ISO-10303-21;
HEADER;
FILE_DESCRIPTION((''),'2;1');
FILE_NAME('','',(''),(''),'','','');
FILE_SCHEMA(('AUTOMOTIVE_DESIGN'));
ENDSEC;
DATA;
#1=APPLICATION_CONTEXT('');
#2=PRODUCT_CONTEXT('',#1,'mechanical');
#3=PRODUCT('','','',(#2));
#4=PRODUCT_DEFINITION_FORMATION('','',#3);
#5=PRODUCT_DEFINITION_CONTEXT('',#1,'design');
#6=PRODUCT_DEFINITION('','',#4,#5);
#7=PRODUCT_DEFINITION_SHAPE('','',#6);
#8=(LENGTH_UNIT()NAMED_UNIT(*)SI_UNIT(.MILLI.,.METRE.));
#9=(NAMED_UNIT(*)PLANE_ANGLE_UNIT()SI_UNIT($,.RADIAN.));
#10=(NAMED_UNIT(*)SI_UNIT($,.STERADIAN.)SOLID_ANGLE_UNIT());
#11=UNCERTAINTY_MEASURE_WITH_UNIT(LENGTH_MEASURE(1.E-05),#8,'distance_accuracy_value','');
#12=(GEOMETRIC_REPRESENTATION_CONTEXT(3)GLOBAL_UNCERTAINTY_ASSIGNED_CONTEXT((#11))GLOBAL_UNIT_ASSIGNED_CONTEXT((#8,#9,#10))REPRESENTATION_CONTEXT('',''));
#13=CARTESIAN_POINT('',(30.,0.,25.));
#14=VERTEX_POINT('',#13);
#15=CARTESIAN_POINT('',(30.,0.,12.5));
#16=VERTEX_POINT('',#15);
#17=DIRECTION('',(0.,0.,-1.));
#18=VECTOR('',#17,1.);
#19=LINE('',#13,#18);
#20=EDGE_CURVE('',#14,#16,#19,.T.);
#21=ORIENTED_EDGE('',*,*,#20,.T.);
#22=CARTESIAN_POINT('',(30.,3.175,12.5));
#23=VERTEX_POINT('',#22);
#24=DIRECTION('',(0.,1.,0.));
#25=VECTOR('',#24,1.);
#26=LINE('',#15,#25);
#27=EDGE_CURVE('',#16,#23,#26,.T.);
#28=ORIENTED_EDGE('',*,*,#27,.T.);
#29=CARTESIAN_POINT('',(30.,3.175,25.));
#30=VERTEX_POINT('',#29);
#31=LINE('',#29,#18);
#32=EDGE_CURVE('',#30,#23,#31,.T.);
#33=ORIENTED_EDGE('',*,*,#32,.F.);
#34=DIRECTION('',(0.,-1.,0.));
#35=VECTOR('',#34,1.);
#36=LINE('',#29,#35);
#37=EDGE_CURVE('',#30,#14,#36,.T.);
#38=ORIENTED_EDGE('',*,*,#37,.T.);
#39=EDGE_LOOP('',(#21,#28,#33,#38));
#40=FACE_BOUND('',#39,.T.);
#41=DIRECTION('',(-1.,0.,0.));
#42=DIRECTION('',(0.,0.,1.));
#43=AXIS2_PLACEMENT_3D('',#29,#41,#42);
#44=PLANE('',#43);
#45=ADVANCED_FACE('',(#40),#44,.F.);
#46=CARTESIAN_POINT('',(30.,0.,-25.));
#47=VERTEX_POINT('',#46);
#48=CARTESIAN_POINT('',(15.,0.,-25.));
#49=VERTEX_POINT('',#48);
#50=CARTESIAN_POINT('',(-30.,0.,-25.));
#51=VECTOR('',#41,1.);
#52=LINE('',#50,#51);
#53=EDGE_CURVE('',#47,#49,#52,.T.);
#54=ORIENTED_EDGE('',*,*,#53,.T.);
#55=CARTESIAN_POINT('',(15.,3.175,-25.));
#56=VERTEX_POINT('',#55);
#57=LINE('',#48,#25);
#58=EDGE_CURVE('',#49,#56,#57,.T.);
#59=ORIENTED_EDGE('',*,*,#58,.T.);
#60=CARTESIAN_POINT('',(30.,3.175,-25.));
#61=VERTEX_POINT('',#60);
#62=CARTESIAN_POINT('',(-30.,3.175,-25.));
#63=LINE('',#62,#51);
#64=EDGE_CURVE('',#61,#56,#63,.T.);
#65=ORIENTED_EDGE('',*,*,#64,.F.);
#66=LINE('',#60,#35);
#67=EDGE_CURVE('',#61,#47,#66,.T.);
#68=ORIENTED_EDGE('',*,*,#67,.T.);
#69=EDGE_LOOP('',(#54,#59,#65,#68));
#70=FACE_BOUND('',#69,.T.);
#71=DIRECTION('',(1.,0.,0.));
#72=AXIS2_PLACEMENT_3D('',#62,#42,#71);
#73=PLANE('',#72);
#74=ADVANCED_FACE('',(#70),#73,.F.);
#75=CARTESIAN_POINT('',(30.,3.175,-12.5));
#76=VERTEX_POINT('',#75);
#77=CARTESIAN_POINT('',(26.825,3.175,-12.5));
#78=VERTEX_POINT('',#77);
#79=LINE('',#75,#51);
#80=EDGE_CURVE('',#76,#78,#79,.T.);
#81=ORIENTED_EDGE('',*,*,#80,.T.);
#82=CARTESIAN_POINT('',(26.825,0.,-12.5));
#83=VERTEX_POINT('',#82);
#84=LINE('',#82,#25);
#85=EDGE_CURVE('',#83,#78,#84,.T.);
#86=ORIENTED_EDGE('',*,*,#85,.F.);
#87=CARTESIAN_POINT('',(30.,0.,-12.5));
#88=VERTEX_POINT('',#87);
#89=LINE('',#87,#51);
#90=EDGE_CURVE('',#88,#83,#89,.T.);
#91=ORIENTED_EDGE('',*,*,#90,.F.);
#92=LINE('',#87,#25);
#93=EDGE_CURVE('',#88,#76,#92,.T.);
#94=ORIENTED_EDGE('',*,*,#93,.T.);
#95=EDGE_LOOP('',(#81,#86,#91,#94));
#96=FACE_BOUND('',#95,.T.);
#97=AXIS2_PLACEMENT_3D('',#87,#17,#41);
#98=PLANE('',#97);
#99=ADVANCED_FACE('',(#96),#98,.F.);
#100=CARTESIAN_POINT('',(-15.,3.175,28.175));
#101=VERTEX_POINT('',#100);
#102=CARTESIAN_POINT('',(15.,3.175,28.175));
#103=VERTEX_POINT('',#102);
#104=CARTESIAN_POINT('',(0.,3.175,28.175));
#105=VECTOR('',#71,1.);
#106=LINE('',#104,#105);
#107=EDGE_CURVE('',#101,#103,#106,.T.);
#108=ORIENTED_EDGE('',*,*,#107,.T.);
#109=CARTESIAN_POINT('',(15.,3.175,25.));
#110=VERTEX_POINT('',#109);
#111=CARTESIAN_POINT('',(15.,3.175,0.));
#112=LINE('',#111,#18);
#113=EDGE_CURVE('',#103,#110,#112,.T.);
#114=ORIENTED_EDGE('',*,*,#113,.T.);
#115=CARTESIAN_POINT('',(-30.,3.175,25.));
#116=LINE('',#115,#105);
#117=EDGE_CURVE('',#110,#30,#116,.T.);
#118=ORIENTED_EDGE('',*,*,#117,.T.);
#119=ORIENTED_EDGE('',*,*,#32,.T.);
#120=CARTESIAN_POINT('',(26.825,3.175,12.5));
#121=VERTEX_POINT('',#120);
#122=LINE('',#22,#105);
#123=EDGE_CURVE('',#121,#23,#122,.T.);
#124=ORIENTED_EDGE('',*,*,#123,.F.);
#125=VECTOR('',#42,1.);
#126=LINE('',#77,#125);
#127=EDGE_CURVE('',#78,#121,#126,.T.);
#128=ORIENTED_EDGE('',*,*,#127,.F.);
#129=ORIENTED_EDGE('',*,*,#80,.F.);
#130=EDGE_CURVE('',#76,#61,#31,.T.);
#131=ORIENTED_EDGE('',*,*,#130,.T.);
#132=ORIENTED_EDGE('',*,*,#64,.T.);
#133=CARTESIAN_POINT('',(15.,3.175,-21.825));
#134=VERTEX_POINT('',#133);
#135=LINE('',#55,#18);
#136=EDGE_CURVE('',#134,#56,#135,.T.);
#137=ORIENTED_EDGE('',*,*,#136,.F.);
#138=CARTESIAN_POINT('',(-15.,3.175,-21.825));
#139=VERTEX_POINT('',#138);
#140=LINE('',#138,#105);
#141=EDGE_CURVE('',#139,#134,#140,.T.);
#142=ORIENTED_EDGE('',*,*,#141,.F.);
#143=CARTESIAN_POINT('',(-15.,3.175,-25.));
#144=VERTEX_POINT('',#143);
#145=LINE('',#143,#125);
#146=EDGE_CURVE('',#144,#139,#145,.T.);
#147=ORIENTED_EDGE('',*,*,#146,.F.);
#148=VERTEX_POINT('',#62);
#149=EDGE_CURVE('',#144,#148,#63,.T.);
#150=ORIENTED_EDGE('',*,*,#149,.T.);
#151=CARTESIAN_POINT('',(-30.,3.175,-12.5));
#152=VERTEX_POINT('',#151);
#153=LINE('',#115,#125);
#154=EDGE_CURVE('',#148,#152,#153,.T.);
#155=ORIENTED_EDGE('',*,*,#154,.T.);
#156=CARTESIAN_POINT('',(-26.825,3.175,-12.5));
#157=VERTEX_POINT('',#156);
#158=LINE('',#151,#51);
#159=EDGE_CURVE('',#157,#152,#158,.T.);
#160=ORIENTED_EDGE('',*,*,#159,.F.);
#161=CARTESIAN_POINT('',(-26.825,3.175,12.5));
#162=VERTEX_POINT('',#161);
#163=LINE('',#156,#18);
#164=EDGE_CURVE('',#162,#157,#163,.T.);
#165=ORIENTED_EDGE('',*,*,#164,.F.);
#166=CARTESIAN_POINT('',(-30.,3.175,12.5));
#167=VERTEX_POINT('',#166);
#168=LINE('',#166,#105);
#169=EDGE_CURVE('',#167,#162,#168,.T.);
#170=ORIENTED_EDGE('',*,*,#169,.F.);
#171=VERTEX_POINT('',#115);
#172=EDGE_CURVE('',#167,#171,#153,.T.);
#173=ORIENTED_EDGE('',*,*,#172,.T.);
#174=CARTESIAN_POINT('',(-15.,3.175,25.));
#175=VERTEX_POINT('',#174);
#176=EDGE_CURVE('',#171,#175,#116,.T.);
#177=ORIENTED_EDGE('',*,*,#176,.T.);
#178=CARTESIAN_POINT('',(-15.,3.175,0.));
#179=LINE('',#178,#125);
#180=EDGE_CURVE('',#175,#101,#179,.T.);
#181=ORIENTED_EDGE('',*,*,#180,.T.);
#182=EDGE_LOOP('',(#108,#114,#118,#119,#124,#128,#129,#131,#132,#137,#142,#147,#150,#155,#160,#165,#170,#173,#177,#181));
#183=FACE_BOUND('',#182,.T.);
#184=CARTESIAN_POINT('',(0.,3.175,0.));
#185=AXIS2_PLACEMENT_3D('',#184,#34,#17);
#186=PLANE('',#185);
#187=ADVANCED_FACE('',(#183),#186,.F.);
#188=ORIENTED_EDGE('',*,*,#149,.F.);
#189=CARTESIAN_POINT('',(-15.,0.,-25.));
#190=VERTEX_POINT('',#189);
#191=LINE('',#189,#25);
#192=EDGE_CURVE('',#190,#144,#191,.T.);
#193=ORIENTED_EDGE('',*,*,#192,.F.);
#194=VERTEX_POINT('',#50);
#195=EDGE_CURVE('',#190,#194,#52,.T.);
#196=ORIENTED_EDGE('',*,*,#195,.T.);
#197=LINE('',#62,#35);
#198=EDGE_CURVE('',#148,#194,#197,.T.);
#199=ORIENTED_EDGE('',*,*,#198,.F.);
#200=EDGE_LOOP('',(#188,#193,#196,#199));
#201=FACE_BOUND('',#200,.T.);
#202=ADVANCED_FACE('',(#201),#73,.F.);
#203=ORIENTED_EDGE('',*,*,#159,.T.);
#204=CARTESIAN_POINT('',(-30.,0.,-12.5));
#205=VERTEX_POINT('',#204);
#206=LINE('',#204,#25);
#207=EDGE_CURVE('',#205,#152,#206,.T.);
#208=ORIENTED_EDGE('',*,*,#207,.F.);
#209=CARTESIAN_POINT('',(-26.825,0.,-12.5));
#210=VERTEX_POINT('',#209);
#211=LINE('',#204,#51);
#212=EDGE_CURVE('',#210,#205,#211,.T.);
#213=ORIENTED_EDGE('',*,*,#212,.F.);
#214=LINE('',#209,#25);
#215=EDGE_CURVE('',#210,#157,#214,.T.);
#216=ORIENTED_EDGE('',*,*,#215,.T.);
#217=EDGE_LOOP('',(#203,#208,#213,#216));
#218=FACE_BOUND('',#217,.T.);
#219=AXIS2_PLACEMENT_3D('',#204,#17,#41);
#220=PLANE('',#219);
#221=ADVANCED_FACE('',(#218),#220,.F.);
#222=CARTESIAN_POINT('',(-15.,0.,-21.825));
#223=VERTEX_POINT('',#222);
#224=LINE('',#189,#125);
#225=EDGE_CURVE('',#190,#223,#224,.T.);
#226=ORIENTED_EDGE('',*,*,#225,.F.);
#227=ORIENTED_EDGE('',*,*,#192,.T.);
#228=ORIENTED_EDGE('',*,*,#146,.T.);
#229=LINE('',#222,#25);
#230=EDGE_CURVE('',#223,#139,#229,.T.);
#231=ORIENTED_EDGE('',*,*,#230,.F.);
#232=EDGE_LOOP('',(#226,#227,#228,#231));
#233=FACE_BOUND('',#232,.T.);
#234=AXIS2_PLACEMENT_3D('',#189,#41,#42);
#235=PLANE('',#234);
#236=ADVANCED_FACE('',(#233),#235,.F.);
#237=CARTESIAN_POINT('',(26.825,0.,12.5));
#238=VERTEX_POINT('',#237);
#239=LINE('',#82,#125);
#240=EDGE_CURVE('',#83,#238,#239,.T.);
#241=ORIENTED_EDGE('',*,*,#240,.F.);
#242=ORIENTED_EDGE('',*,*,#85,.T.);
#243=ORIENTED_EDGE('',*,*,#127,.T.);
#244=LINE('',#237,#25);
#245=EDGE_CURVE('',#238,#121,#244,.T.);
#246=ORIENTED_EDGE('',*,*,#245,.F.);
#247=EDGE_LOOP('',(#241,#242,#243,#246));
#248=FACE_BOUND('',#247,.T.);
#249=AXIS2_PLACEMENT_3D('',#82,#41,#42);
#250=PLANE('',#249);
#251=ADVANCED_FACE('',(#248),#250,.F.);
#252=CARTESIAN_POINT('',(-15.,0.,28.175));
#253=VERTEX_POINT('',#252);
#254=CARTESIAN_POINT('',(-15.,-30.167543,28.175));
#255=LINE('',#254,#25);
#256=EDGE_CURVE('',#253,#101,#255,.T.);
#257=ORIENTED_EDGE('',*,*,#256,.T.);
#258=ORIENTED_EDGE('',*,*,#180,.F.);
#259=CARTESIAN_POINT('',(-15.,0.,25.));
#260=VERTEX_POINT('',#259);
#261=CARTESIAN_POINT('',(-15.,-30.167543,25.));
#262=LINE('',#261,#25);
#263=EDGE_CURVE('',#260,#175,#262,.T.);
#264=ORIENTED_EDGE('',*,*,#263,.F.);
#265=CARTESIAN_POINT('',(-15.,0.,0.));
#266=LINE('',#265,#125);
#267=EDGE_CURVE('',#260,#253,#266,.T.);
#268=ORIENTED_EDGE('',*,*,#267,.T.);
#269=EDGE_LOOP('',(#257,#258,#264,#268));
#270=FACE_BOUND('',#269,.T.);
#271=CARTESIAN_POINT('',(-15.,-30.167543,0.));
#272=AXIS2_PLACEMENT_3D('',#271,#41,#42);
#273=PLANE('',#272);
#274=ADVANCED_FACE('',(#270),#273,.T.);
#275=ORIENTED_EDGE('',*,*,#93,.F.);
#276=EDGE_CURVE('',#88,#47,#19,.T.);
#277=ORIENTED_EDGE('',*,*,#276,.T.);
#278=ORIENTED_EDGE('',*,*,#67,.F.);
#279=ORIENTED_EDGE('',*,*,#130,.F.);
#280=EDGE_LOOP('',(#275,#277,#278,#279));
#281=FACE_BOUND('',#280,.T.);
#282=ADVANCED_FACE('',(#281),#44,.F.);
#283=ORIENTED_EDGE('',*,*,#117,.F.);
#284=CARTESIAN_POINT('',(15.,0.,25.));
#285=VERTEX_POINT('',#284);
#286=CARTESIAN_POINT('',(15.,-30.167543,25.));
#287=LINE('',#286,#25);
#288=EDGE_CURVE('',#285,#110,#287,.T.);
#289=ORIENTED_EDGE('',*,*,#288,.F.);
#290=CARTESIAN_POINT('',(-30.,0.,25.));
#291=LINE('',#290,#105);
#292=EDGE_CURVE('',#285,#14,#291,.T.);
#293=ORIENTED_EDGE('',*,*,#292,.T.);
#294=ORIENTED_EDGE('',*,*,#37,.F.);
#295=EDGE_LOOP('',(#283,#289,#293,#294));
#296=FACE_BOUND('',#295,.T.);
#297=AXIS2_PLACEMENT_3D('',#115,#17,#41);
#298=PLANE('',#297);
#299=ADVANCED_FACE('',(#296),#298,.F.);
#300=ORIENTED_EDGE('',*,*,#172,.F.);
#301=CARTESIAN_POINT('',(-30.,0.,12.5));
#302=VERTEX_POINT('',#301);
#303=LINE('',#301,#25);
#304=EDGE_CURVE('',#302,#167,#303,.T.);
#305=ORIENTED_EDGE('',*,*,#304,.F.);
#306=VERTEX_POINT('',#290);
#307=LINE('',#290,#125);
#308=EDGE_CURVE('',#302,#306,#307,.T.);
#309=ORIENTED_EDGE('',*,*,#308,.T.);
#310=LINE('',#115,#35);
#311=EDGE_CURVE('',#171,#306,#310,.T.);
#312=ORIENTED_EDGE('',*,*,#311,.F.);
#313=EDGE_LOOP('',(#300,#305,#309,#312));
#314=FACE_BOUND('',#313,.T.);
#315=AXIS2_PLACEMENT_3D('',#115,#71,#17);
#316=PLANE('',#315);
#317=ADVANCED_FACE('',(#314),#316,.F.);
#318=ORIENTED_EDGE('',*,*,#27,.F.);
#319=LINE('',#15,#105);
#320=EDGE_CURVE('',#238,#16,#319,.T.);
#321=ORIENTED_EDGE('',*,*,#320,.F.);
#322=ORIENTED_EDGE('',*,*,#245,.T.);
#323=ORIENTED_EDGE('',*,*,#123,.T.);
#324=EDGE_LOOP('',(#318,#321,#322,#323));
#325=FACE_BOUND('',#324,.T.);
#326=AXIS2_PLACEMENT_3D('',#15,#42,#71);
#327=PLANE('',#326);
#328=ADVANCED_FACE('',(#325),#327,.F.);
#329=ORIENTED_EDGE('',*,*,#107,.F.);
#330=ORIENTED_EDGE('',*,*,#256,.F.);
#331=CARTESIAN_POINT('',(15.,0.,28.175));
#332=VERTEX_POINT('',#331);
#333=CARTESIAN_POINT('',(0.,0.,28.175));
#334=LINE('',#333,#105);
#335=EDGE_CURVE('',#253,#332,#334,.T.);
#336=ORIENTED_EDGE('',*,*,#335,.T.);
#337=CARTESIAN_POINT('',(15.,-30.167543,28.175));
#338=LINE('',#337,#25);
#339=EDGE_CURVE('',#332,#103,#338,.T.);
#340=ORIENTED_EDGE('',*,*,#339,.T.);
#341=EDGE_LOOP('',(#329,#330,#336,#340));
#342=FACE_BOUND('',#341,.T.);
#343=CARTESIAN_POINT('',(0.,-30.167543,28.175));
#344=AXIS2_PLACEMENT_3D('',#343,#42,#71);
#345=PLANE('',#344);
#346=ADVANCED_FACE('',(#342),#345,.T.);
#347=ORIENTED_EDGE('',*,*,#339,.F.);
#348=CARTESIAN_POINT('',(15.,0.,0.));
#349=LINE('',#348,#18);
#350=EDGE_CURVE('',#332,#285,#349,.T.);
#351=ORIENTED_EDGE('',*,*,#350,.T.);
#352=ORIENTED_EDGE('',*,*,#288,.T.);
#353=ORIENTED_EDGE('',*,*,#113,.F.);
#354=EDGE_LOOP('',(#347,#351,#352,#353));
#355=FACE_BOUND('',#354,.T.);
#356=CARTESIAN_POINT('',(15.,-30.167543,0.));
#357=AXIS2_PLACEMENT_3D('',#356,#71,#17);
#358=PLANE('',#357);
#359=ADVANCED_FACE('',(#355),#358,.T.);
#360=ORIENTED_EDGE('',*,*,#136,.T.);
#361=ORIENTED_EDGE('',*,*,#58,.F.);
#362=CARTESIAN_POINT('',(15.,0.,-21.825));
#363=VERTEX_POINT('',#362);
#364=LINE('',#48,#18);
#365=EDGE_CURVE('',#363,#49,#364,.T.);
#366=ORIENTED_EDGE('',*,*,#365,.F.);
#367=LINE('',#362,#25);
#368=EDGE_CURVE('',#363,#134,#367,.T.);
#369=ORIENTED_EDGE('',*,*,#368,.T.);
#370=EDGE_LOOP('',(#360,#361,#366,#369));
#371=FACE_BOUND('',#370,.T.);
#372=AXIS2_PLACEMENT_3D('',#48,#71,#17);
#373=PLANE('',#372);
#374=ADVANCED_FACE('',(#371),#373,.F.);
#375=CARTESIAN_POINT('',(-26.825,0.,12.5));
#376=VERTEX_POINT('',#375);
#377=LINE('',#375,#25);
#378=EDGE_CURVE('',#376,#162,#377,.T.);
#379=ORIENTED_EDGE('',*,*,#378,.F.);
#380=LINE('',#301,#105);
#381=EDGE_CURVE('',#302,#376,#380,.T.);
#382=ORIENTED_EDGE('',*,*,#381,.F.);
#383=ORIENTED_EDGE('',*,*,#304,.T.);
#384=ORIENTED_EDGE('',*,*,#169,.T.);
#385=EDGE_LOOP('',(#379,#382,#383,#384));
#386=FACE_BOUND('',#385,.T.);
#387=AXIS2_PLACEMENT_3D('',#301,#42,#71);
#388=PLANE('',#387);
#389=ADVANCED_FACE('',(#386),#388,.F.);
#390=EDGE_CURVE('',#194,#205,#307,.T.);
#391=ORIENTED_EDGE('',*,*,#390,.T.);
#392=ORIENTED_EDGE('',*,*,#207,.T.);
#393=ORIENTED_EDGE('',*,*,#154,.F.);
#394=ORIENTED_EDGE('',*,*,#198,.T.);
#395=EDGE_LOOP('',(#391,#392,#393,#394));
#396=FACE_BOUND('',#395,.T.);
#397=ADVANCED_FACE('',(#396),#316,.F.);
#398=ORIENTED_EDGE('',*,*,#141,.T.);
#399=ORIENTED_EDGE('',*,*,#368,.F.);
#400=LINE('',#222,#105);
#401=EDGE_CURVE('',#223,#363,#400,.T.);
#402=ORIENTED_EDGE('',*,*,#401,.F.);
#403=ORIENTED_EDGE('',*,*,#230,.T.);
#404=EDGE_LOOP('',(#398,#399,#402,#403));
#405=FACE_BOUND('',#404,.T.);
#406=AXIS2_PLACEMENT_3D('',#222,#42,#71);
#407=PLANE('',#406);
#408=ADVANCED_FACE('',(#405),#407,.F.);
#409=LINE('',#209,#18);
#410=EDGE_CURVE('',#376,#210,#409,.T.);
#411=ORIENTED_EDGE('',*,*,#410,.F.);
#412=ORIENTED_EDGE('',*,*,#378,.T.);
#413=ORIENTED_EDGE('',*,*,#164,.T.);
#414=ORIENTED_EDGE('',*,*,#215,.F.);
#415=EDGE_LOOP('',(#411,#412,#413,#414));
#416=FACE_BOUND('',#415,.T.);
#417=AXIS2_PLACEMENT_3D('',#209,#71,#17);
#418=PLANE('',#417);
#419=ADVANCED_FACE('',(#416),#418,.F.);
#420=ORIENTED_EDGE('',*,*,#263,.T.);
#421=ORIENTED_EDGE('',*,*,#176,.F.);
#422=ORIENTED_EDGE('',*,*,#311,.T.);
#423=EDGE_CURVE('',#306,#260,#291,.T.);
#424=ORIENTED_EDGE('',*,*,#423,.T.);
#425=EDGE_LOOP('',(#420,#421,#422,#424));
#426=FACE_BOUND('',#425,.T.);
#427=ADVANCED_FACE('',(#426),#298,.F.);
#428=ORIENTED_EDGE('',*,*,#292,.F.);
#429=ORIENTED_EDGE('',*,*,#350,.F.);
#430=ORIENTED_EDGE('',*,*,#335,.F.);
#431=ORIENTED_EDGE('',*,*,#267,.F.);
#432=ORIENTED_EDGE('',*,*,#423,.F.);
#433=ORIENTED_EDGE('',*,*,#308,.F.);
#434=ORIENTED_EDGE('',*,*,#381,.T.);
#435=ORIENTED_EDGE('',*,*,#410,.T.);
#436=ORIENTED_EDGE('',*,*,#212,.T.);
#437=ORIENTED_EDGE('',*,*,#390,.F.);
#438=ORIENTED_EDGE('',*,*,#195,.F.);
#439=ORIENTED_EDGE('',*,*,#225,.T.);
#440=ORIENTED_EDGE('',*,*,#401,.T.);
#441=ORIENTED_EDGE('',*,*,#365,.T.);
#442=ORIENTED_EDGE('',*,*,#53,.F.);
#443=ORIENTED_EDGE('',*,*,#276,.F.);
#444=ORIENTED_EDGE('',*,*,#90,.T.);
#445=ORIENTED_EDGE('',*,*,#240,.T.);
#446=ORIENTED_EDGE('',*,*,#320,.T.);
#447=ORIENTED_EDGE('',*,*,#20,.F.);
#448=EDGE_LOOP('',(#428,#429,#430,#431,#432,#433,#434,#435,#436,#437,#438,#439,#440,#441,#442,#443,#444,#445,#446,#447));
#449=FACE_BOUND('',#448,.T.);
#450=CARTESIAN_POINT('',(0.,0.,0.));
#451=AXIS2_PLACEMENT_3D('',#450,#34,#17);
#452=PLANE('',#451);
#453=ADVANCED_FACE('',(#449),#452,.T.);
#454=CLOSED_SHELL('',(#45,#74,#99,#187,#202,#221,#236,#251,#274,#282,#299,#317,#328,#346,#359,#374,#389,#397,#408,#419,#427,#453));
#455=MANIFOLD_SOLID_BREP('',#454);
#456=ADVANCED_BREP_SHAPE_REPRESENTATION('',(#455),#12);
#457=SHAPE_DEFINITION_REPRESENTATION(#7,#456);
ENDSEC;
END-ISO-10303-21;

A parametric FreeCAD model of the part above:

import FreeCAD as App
import Part
import Sketcher
Q = App.Units.Quantity


def add_polygon(sketch, points):
    """Adds a closed chain of lines whose ends are joined by coincident constraints."""
    first, n = sketch.GeometryCount, len(points)
    for a, b in zip(points, points[1:] + points[:1]):
        sketch.addGeometry(Part.LineSegment(App.Vector(*a, 0), App.Vector(*b, 0)), False)
    for i in range(n):
        sketch.addConstraint(Sketcher.Constraint("Coincident", first + i, 2, first + (i + 1) % n, 1))

doc = App.newDocument("Part")
body = doc.addObject("PartDesign::Body", "Body")

# Sketch on XZ plane
sketch1 = body.newObject("Sketcher::SketchObject", "Sketch")
sketch1.AttachmentSupport = (doc.getObject("XZ_Plane"), [""])
sketch1.MapMode = "FlatFace"
add_polygon(sketch1, [(-30, -25), (-30, 25), (30, 25), (30, -25)])  # lines 0-3
sketch1.addConstraint(Sketcher.Constraint("Vertical", 0))
sketch1.addConstraint(Sketcher.Constraint("Horizontal", 1))
sketch1.addConstraint(Sketcher.Constraint("Vertical", 2))
sketch1.addConstraint(Sketcher.Constraint("Horizontal", 3))
sketch1.addConstraint(Sketcher.Constraint("Symmetric", 0, 2, 2, 2, -1, 1))
sketch1.addConstraint(Sketcher.Constraint("DistanceX", 1, 1, 1, 2, Q("60 mm")))
sketch1.addConstraint(Sketcher.Constraint("DistanceY", 0, 1, 0, 2, Q("50 mm")))
pad1 = body.newObject("PartDesign::Pad", "Pad")
pad1.Profile = sketch1
pad1.Length = 3.175
pad1.Reversed = True

# Sketch on XZ plane
sketch2 = body.newObject("Sketcher::SketchObject", "Sketch001")
sketch2.AttachmentSupport = (doc.getObject("XZ_Plane"), [""])
sketch2.MapMode = "FlatFace"
sketch2.AttachmentOffset = App.Placement(App.Vector(0, 0, -3.175), App.Rotation())
add_polygon(sketch2, [(-15, -25), (-15, -21.8), (15, -21.8), (15, -25)])  # lines 0-3
sketch2.addConstraint(Sketcher.Constraint("Vertical", 0))
sketch2.addConstraint(Sketcher.Constraint("Horizontal", 1))
sketch2.addConstraint(Sketcher.Constraint("Vertical", 2))
sketch2.addConstraint(Sketcher.Constraint("Horizontal", 3))
sketch2.addConstraint(Sketcher.Constraint("DistanceX", 1, 1, 1, 2, Q("30 mm")))
sketch2.addConstraint(Sketcher.Constraint("DistanceX", 0, 2, -1, 1, Q("15 mm")))
sketch2.addConstraint(Sketcher.Constraint("DistanceY", 2, 2, -1, 1, Q("25 mm")))
sketch2.addConstraint(Sketcher.Constraint("DistanceY", 0, 1, 0, 2, Q("3.175 mm")))
pocket1 = body.newObject("PartDesign::Pocket", "Pocket")
pocket1.Profile = sketch2
pocket1.Type = "ThroughAll"
pocket1.Reversed = True

# Sketch on XZ plane
sketch3 = body.newObject("Sketcher::SketchObject", "Sketch002")
sketch3.AttachmentSupport = (doc.getObject("XZ_Plane"), [""])
sketch3.MapMode = "FlatFace"
sketch3.AttachmentOffset = App.Placement(App.Vector(0, 0, -3.175), App.Rotation())
add_polygon(sketch3, [(-15, 25), (-15, 28.2), (15, 28.2), (15, 25)])  # lines 0-3
sketch3.addConstraint(Sketcher.Constraint("Vertical", 0))
sketch3.addConstraint(Sketcher.Constraint("Horizontal", 1))
sketch3.addConstraint(Sketcher.Constraint("Vertical", 2))
sketch3.addConstraint(Sketcher.Constraint("Horizontal", 3))
sketch3.addConstraint(Sketcher.Constraint("DistanceX", 1, 1, 1, 2, Q("30 mm")))
sketch3.addConstraint(Sketcher.Constraint("DistanceX", 0, 2, -1, 1, Q("15 mm")))
sketch3.addConstraint(Sketcher.Constraint("DistanceY", -1, 1, 2, 2, Q("25 mm")))
sketch3.addConstraint(Sketcher.Constraint("DistanceY", 0, 1, 0, 2, Q("3.175 mm")))
pad2 = body.newObject("PartDesign::Pad", "Pad001")
pad2.Profile = sketch3
pad2.Length = 3.175

# Sketch on XZ plane
sketch4 = body.newObject("Sketcher::SketchObject", "Sketch003")
sketch4.AttachmentSupport = (doc.getObject("XZ_Plane"), [""])
sketch4.MapMode = "FlatFace"
sketch4.AttachmentOffset = App.Placement(App.Vector(0, 0, -3.175), App.Rotation())
add_polygon(sketch4, [(-30, -12.5), (-30, 12.5), (-26.8, 12.5), (-26.8, -12.5)])  # lines 0-3
add_polygon(sketch4, [(26.8, -12.5), (26.8, 12.5), (30, 12.5), (30, -12.5)])  # lines 4-7
sketch4.addConstraint(Sketcher.Constraint("Vertical", 0))
sketch4.addConstraint(Sketcher.Constraint("Horizontal", 1))
sketch4.addConstraint(Sketcher.Constraint("Vertical", 2))
sketch4.addConstraint(Sketcher.Constraint("Horizontal", 3))
sketch4.addConstraint(Sketcher.Constraint("Vertical", 4))
sketch4.addConstraint(Sketcher.Constraint("Horizontal", 5))
sketch4.addConstraint(Sketcher.Constraint("Vertical", 6))
sketch4.addConstraint(Sketcher.Constraint("Horizontal", 7))
sketch4.addConstraint(Sketcher.Constraint("Symmetric", 2, 2, 4, 2, -1, 1))
sketch4.addConstraint(Sketcher.Constraint("Symmetric", 0, 2, 6, 2, -1, 1))
sketch4.addConstraint(Sketcher.Constraint("Horizontal", 1, 2, 4, 2))
sketch4.addConstraint(Sketcher.Constraint("DistanceY", 0, 1, 0, 2, Q("25 mm")))
sketch4.addConstraint(Sketcher.Constraint("DistanceX", 0, 2, -1, 1, Q("30 mm")))
sketch4.addConstraint(Sketcher.Constraint("DistanceX", 1, 1, 1, 2, Q("3.175 mm")))
pocket2 = body.newObject("PartDesign::Pocket", "Pocket001")
pocket2.Profile = sketch4
pocket2.Length = 3.175
pocket2.Reversed = True

doc.recompute()
